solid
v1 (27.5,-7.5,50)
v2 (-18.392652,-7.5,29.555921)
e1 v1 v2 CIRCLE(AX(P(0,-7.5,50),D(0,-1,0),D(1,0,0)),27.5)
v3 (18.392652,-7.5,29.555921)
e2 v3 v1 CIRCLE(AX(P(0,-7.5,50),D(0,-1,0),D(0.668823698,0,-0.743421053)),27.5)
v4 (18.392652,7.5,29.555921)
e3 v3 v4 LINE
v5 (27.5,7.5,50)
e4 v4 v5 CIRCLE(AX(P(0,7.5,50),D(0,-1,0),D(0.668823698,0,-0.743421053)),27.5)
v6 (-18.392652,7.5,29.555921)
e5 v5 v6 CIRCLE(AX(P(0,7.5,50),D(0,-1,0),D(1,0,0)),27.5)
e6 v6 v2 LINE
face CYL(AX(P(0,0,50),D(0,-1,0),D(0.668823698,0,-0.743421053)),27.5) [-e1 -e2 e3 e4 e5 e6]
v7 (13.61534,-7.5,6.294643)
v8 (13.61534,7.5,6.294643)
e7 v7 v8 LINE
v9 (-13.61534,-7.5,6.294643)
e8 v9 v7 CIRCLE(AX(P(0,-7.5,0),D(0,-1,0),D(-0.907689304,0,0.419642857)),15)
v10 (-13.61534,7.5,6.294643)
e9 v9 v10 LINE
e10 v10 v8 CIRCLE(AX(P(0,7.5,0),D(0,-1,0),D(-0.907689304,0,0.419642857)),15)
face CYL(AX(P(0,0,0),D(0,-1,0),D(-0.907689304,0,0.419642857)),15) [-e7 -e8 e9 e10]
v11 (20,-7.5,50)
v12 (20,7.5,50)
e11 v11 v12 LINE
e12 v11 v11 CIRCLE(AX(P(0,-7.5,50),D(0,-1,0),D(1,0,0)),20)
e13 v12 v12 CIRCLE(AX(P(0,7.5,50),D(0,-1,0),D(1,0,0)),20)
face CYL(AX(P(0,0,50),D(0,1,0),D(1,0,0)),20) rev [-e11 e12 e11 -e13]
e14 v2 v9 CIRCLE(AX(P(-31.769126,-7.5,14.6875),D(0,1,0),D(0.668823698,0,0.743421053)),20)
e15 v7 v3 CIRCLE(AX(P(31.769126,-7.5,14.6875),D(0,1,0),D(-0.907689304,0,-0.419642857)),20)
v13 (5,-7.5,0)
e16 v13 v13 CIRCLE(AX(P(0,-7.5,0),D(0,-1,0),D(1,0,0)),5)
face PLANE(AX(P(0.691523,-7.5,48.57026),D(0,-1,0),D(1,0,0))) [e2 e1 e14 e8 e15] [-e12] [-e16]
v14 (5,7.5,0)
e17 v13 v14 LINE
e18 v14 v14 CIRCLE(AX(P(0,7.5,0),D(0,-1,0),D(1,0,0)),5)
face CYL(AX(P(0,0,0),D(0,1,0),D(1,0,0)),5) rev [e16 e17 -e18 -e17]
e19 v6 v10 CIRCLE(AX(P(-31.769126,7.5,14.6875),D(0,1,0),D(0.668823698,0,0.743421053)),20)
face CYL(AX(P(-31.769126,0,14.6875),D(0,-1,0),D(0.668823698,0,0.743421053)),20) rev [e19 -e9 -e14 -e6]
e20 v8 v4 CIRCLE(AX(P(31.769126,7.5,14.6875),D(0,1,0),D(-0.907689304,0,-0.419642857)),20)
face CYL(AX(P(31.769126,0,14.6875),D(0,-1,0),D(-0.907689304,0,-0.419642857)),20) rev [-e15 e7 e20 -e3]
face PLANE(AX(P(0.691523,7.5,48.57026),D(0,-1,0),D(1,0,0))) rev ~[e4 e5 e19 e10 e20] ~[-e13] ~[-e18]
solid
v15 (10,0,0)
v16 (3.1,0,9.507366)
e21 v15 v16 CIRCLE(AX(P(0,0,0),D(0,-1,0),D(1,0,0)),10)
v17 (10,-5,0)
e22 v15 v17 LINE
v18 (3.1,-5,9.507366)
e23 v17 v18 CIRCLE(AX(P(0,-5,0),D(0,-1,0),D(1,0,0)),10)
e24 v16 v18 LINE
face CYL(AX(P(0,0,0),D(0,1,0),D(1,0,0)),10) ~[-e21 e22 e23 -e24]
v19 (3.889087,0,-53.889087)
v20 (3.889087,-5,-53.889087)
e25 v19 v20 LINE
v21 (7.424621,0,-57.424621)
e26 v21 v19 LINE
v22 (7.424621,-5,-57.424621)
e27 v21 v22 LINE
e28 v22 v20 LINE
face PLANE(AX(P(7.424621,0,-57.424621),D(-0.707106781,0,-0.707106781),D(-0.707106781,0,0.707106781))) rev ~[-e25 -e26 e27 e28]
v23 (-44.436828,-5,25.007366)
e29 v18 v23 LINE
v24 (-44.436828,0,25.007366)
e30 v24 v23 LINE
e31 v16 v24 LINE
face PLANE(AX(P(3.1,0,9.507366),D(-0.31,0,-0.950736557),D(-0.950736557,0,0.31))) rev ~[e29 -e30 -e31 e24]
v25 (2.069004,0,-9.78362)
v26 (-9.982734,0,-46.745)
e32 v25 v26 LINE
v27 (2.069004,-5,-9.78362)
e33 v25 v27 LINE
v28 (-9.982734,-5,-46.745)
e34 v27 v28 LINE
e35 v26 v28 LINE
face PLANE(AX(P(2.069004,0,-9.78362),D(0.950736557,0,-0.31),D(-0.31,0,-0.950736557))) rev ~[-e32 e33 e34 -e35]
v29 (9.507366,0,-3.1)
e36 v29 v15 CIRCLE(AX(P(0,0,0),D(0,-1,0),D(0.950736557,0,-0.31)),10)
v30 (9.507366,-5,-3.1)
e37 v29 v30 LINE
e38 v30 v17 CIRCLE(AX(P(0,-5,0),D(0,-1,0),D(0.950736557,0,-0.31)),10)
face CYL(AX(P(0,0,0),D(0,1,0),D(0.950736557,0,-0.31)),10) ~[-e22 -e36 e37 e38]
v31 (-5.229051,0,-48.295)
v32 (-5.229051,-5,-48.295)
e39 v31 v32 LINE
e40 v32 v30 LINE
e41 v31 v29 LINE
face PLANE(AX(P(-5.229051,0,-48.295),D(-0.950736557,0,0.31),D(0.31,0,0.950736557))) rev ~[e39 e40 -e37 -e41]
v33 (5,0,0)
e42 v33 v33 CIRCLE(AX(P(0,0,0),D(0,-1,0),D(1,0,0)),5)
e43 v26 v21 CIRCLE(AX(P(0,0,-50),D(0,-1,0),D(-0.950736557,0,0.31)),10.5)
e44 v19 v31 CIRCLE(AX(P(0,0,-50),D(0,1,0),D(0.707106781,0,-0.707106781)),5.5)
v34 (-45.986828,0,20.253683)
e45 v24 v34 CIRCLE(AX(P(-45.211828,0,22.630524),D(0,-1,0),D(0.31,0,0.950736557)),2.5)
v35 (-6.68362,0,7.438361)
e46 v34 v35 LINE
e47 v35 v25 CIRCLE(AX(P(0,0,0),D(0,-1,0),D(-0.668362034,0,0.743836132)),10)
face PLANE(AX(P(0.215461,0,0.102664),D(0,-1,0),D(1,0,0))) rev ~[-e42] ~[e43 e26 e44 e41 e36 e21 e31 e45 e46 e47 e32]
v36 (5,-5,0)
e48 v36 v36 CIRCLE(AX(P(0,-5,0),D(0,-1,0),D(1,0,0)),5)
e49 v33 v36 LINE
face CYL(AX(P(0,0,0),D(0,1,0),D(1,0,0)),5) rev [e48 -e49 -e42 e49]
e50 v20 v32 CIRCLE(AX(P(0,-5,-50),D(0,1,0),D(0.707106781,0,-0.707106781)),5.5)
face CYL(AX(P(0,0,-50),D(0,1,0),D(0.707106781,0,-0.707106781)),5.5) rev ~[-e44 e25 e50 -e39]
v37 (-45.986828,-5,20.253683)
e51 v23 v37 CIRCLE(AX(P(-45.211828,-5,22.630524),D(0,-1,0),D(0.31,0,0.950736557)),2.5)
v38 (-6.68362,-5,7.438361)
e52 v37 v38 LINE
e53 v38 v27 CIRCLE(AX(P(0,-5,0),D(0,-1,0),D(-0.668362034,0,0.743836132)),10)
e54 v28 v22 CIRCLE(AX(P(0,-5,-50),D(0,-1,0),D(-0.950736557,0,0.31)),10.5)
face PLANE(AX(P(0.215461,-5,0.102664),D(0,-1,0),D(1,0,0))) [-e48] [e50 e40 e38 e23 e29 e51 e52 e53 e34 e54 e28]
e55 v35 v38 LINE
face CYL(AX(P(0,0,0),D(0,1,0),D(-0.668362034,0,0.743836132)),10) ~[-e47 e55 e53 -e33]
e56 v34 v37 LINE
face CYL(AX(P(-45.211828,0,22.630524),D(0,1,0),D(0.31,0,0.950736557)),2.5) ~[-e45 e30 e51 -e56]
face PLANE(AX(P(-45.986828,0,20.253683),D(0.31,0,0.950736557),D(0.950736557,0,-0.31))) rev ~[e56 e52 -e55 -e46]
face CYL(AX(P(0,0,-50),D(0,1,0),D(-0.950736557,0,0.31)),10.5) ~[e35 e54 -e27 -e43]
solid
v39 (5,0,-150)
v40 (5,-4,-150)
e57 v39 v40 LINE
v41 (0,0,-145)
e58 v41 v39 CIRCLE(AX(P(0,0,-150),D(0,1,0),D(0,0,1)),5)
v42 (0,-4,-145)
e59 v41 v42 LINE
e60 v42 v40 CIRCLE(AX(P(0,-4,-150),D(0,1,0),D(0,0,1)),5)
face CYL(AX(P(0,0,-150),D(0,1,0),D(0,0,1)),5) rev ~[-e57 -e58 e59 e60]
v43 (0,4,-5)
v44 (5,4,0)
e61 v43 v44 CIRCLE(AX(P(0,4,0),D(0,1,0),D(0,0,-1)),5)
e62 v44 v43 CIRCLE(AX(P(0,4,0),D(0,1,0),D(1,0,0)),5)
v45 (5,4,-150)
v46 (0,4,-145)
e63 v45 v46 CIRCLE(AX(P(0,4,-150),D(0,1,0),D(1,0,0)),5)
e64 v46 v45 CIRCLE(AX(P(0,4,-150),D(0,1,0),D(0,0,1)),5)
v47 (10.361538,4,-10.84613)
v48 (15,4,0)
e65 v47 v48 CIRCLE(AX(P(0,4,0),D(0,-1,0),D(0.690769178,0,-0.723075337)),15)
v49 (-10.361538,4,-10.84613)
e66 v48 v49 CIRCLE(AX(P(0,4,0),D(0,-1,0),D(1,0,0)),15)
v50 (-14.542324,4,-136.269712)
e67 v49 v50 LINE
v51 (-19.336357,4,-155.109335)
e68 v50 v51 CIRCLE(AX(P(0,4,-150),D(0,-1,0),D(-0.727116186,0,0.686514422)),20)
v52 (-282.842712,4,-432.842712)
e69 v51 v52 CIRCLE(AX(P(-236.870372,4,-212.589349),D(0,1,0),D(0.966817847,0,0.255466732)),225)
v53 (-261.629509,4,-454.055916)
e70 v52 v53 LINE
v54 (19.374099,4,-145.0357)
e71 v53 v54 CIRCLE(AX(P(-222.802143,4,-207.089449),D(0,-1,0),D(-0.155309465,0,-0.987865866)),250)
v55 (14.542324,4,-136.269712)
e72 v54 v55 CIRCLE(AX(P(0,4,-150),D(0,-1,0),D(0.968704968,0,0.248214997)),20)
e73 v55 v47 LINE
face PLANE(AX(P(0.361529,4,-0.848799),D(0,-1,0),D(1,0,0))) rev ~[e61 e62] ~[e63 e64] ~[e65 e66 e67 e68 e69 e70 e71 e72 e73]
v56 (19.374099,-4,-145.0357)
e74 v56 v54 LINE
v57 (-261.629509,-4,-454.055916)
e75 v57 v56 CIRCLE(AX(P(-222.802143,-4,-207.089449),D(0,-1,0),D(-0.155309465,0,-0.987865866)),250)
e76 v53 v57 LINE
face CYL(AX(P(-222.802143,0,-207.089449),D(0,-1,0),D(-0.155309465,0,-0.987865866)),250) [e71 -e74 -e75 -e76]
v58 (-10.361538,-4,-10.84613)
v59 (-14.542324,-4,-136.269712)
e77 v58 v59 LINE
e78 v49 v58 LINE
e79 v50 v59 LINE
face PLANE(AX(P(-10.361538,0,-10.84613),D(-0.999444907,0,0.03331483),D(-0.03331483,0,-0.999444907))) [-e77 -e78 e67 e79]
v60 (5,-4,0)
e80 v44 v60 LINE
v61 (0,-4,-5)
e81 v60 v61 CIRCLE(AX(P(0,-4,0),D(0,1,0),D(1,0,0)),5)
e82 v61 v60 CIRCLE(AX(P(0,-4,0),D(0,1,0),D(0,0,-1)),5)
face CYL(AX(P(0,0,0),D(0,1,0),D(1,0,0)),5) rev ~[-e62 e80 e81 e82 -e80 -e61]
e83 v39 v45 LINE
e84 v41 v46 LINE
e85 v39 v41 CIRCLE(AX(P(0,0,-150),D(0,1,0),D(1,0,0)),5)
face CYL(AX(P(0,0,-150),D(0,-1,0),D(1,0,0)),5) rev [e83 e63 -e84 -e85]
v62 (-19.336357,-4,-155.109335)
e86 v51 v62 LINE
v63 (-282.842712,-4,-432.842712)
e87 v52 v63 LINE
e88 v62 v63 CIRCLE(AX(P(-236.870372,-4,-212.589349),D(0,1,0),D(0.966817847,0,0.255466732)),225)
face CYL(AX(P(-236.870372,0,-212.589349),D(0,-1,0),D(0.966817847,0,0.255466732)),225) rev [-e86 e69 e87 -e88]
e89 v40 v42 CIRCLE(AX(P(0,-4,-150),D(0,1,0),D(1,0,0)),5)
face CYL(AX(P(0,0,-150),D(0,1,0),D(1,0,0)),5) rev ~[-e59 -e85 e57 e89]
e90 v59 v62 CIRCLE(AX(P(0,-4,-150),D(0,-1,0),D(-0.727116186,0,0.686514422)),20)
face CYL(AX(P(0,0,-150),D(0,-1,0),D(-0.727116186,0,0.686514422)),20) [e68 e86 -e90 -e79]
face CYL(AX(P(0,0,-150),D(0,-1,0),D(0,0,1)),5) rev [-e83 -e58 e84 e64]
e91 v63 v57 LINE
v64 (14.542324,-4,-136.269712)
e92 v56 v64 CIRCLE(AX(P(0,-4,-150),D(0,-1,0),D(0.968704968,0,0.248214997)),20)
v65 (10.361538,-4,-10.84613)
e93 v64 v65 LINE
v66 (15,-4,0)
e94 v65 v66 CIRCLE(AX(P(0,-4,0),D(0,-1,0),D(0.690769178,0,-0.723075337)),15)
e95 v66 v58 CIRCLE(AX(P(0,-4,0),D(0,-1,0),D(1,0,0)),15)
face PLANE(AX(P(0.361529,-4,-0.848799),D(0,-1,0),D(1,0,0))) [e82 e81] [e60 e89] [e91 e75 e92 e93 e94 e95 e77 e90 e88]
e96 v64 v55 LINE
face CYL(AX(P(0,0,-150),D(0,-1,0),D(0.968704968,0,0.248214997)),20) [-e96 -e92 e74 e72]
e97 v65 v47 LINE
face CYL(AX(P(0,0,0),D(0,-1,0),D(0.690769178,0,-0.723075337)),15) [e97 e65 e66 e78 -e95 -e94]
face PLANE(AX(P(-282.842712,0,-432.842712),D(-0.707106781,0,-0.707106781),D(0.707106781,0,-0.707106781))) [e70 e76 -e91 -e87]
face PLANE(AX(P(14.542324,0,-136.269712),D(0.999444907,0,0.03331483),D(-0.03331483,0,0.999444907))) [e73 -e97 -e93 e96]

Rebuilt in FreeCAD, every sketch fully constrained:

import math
import FreeCAD as App
import Part
import Sketcher
Q = App.Units.Quantity

doc = App.newDocument("Part")
params = doc.addObject("Spreadsheet::Sheet", "Params")
for row, (alias, value) in enumerate([
    ("sketch1_radius", "15 mm"),
    ("sketch1_radius2", "20 mm"),
    ("sketch1_radius3", "225 mm"),
    ("sketch1_radius4", "250 mm"),
    ("sketch1_radius5", "5 mm"),
    ("pad1_length", "8 mm"),
    ("sketch2_diameter", "10 mm"),
    ("sketch2_diameter2", "40 mm"),
    ("sketch2_radius", "15 mm"),
    ("sketch2_radius2", "27.5 mm"),
    ("pad2_length", "15 mm"),
    ("sketch3_diameter", "10 mm"),
    ("sketch3_radius", "10 mm"),
    ("sketch3_radius2", "2.5 mm"),
    ("sketch3_radius3", "10.5 mm"),
    ("sketch3_radius4", "5.5 mm"),
    ("pad3_length", "5 mm"),
], start=1):
    params.set(f"A{row}", alias)
    params.set(f"B{row}", "=" + value)
    params.setAlias(f"B{row}", alias)

body = doc.addObject("PartDesign::Body", "Body")

# Sketch on XZ plane
sketch1 = body.newObject("Sketcher::SketchObject", "Sketch")
sketch1.AttachmentSupport = (doc.getObject("XZ_Plane"), [""])
sketch1.MapMode = "FlatFace"
sketch1.addGeometry([
    Part.ArcOfCircle(Part.Circle(App.Vector(0, 0, 0), App.Vector(0, 0, 1), 15), math.radians(-46), math.radians(0)),  # 0
    Part.ArcOfCircle(Part.Circle(App.Vector(0, 0, 0), App.Vector(0, 0, 1), 15), math.radians(0), math.radians(226)),  # 1
    Part.LineSegment(App.Vector(-10, -11, 0), App.Vector(-15, -136, 0)),  # 2
    Part.ArcOfCircle(Part.Circle(App.Vector(0, -150, 0), App.Vector(0, 0, 1), 20), math.radians(137), math.radians(195)),  # 3
    Part.ArcOfCircle(Part.Circle(App.Vector(-237, -213, 0), App.Vector(0, 0, 1), 225), math.radians(-102), math.radians(15)),  # 4
    Part.LineSegment(App.Vector(-283, -433, 0), App.Vector(-262, -454, 0)),  # 5
    Part.ArcOfCircle(Part.Circle(App.Vector(-223, -207, 0), App.Vector(0, 0, 1), 250), math.radians(-99), math.radians(14)),  # 6
    Part.ArcOfCircle(Part.Circle(App.Vector(0, -150, 0), App.Vector(0, 0, 1), 20), math.radians(14), math.radians(43)),  # 7
    Part.LineSegment(App.Vector(15, -136, 0), App.Vector(10, -11, 0)),  # 8
    Part.ArcOfCircle(Part.Circle(App.Vector(0, -150, 0), App.Vector(0, 0, 1), 5), math.radians(0), math.radians(90)),  # 9
    Part.ArcOfCircle(Part.Circle(App.Vector(0, -150, 0), App.Vector(0, 0, 1), 5), math.radians(90), math.radians(360)),  # 10
    Part.ArcOfCircle(Part.Circle(App.Vector(0, 0, 0), App.Vector(0, 0, 1), 5), math.radians(0), math.radians(270)),  # 11
    Part.ArcOfCircle(Part.Circle(App.Vector(0, 0, 0), App.Vector(0, 0, 1), 5), math.radians(-90), math.radians(0)),  # 12
], False)
sketch1.addConstraint([
    Sketcher.Constraint("Tangent", 0, 2, 1, 1),
    Sketcher.Constraint("Coincident", 1, 2, 2, 1),
    Sketcher.Constraint("Coincident", 2, 2, 3, 1),
    Sketcher.Constraint("Tangent", 3, 2, 4, 2),
    Sketcher.Constraint("Coincident", 4, 1, 5, 1),
    Sketcher.Constraint("Coincident", 5, 2, 6, 1),
    Sketcher.Constraint("Tangent", 6, 2, 7, 1),
    Sketcher.Constraint("Coincident", 7, 2, 8, 1),
    Sketcher.Constraint("Coincident", 8, 2, 0, 1),
    Sketcher.Constraint("Tangent", 9, 1, 10, 2),
    Sketcher.Constraint("Coincident", 10, 1, 9, 2),
    Sketcher.Constraint("Tangent", 11, 1, 12, 2),
    Sketcher.Constraint("Coincident", 12, 1, 11, 2),
    Sketcher.Constraint("Coincident", 0, 3, -1, 1),
    Sketcher.Constraint("Coincident", 11, 3, -1, 1),
    Sketcher.Constraint("Coincident", 7, 3, 3, 3),
    Sketcher.Constraint("Coincident", 9, 3, 3, 3),
    Sketcher.Constraint("Equal", 0, 1),
    Sketcher.Constraint("Equal", 3, 7),
    Sketcher.Constraint("Equal", 10, 11),
    Sketcher.Constraint("Symmetric", 2, 2, 7, 2, -2),
    Sketcher.Constraint("PointOnObject", 0, 2, -1),
    Sketcher.Constraint("PointOnObject", 10, 1, -2),
    Sketcher.Constraint("PointOnObject", 11, 1, -1),
    Sketcher.Constraint("PointOnObject", 12, 1, -2),
    Sketcher.Constraint("Horizontal", 1, 2, 8, 2),
    Sketcher.Constraint("Horizontal", 10, 3, 9, 1),
    Sketcher.Constraint("Radius", 0, Q("15 mm")),
    Sketcher.Constraint("Radius", 3, Q("20 mm")),
    Sketcher.Constraint("Radius", 4, Q("225 mm")),
    Sketcher.Constraint("Radius", 6, Q("250 mm")),
    Sketcher.Constraint("Radius", 9, Q("5 mm")),
    Sketcher.Constraint("Angle", 5, Q("-45 deg")),
    Sketcher.Constraint("Distance", 5, Q("30 mm")),
    Sketcher.Constraint("DistanceY", 3, 3, -1, 1, Q("150 mm")),
    Sketcher.Constraint("DistanceY", 4, 1, 2, 2, Q("296.573001 mm")),
    Sketcher.Constraint("DistanceY", 4, 3, 6, 3, Q("5.4999 mm")),
    Sketcher.Constraint("Distance", 2, Q("125.493242 mm")),
    Sketcher.Constraint("DistanceY", 4, 3, -1, 1, Q("212.589349 mm")),
])
sketch1.setExpression("Constraints[27]", "Params.sketch1_radius")
sketch1.setExpression("Constraints[28]", "Params.sketch1_radius2")
sketch1.setExpression("Constraints[29]", "Params.sketch1_radius3")
sketch1.setExpression("Constraints[30]", "Params.sketch1_radius4")
sketch1.setExpression("Constraints[31]", "Params.sketch1_radius5")
pad1 = body.newObject("PartDesign::Pad", "Pad")
pad1.Profile = sketch1
pad1.setExpression("Length", "Params.pad1_length")
pad1.Midplane = True
body2 = doc.addObject("PartDesign::Body", "Body001")

# Sketch on XZ plane
sketch2 = body2.newObject("Sketcher::SketchObject", "Sketch001")
sketch2.AttachmentSupport = (doc.getObject("XZ_Plane001"), [""])
sketch2.MapMode = "FlatFace"
sketch2.addGeometry([
    Part.ArcOfCircle(Part.Circle(App.Vector(0, 50, 0), App.Vector(0, 0, 1), 28), math.radians(-48), math.radians(0)),  # 0
    Part.ArcOfCircle(Part.Circle(App.Vector(0, 50, 0), App.Vector(0, 0, 1), 28), math.radians(0), math.radians(228)),  # 1
    Part.ArcOfCircle(Part.Circle(App.Vector(-32, 15, 0), App.Vector(0, 0, 1), 20), math.radians(-25), math.radians(48)),  # 2
    Part.ArcOfCircle(Part.Circle(App.Vector(0, 0, 0), App.Vector(0, 0, 1), 15), math.radians(155), math.radians(385)),  # 3
    Part.ArcOfCircle(Part.Circle(App.Vector(32, 15, 0), App.Vector(0, 0, 1), 20), math.radians(132), math.radians(205)),  # 4
    Part.Circle(App.Vector(0, 0, 0), App.Vector(0, 0, 1), 5),  # 5
    Part.Circle(App.Vector(0, 50, 0), App.Vector(0, 0, 1), 20),  # 6
], False)
sketch2.addConstraint([
    Sketcher.Constraint("Tangent", 0, 2, 1, 1),
    Sketcher.Constraint("Tangent", 1, 2, 2, 2),
    Sketcher.Constraint("Tangent", 2, 1, 3, 1),
    Sketcher.Constraint("Tangent", 3, 2, 4, 2),
    Sketcher.Constraint("Tangent", 4, 1, 0, 1),
    Sketcher.Constraint("Coincident", 3, 3, -1, 1),
    Sketcher.Constraint("Coincident", 5, 3, -1, 1),
    Sketcher.Constraint("Coincident", 6, 3, 0, 3),
    Sketcher.Constraint("Equal", 0, 1),
    Sketcher.Constraint("Equal", 2, 4),
    Sketcher.Constraint("Equal", 4, 6),
    Sketcher.Constraint("PointOnObject", 0, 3, -2),
    Sketcher.Constraint("Horizontal", 6, 3, 0, 2),
    Sketcher.Constraint("Diameter", 5, Q("10 mm")),
    Sketcher.Constraint("Diameter", 6, Q("40 mm")),
    Sketcher.Constraint("Radius", 3, Q("15 mm")),
    Sketcher.Constraint("Radius", 0, Q("27.5 mm")),
    Sketcher.Constraint("DistanceY", -1, 1, 0, 3, Q("50 mm")),
])
sketch2.setExpression("Constraints[13]", "Params.sketch2_diameter")
sketch2.setExpression("Constraints[14]", "Params.sketch2_diameter2")
sketch2.setExpression("Constraints[15]", "Params.sketch2_radius")
sketch2.setExpression("Constraints[16]", "Params.sketch2_radius2")
pad2 = body2.newObject("PartDesign::Pad", "Pad001")
pad2.Profile = sketch2
pad2.setExpression("Length", "Params.pad2_length")
pad2.Midplane = True
body3 = doc.addObject("PartDesign::Body", "Body002")

# Sketch on XZ plane
sketch3 = body3.newObject("Sketcher::SketchObject", "Sketch002")
sketch3.AttachmentSupport = (doc.getObject("XZ_Plane002"), [""])
sketch3.MapMode = "FlatFace"
sketch3.addGeometry([
    Part.ArcOfCircle(Part.Circle(App.Vector(0, 0, 0), App.Vector(0, 0, 1), 10), math.radians(-18.06), math.radians(0)),  # 0
    Part.ArcOfCircle(Part.Circle(App.Vector(0, 0, 0), App.Vector(0, 0, 1), 10), math.radians(0), math.radians(72)),  # 1
    Part.LineSegment(App.Vector(3.1, 9.5, 0), App.Vector(-44.4, 25, 0)),  # 2
    Part.ArcOfCircle(Part.Circle(App.Vector(-45.2, 22.6, 0), App.Vector(0, 0, 1), 2.5), math.radians(72), math.radians(252)),  # 3
    Part.LineSegment(App.Vector(-46, 20.3, 0), App.Vector(-6.7, 7.4, 0)),  # 4
    Part.ArcOfCircle(Part.Circle(App.Vector(0, 0, 0), App.Vector(0, 0, 1), 10), math.radians(132), math.radians(282)),  # 5
    Part.LineSegment(App.Vector(2.1, -9.8, 0), App.Vector(-10, -46.7, 0)),  # 6
    Part.ArcOfCircle(Part.Circle(App.Vector(0, -50, 0), App.Vector(0, 0, 1), 10.5), math.radians(162), math.radians(315)),  # 7
    Part.LineSegment(App.Vector(7.4, -57.4, 0), App.Vector(3.9, -53.9, 0)),  # 8
    Part.ArcOfCircle(Part.Circle(App.Vector(0, -50, 0), App.Vector(0, 0, 1), 5.5), math.radians(162), math.radians(315)),  # 9
    Part.LineSegment(App.Vector(-5.2, -48.3, 0), App.Vector(9.5, -3.1, 0)),  # 10
    Part.Circle(App.Vector(0, 0, 0), App.Vector(0, 0, 1), 5),  # 11
], False)
sketch3.addConstraint([
    Sketcher.Constraint("Tangent", 0, 2, 1, 1),
    Sketcher.Constraint("Tangent", 1, 2, 2, 1),
    Sketcher.Constraint("Tangent", 2, 2, 3, 1),
    Sketcher.Constraint("Tangent", 3, 2, 4, 1),
    Sketcher.Constraint("Coincident", 4, 2, 5, 1),
    Sketcher.Constraint("Coincident", 5, 2, 6, 1),
    Sketcher.Constraint("Tangent", 6, 2, 7, 1),
    Sketcher.Constraint("Coincident", 7, 2, 8, 1),
    Sketcher.Constraint("Coincident", 8, 2, 9, 2),
    Sketcher.Constraint("Tangent", 9, 1, 10, 1),
    Sketcher.Constraint("Tangent", 10, 2, 0, 1),
    Sketcher.Constraint("Coincident", 0, 3, -1, 1),
    Sketcher.Constraint("Coincident", 5, 3, -1, 1),
    Sketcher.Constraint("Coincident", 11, 3, -1, 1),
    Sketcher.Constraint("Coincident", 9, 3, 7, 3),
    Sketcher.Constraint("Equal", 0, 1),
    Sketcher.Constraint("Equal", 1, 5),
    Sketcher.Constraint("PointOnObject", 7, 3, -2),
    Sketcher.Constraint("PointOnObject", 0, 2, -1),
    Sketcher.Constraint("Parallel", 2, 4),
    Sketcher.Constraint("Perpendicular", 4, 6),
    Sketcher.Constraint("Parallel", 6, 10),
    Sketcher.Constraint("Diameter", 11, Q("10 mm")),
    Sketcher.Constraint("Radius", 0, Q("10 mm")),
    Sketcher.Constraint("Radius", 3, Q("2.5 mm")),
    Sketcher.Constraint("Radius", 7, Q("10.5 mm")),
    Sketcher.Constraint("Radius", 9, Q("5.5 mm")),
    Sketcher.Constraint("Angle", 8, Q("135 deg")),
    Sketcher.Constraint("Distance", 2, Q("50 mm")),
    Sketcher.Constraint("DistanceY", 7, 3, -1, 1, Q("50 mm")),
    Sketcher.Constraint("DistanceY", 7, 2, 5, 2, Q("47.641001 mm")),
])
sketch3.setExpression("Constraints[22]", "Params.sketch3_diameter")
sketch3.setExpression("Constraints[23]", "Params.sketch3_radius")
sketch3.setExpression("Constraints[24]", "Params.sketch3_radius2")
sketch3.setExpression("Constraints[25]", "Params.sketch3_radius3")
sketch3.setExpression("Constraints[26]", "Params.sketch3_radius4")
pad3 = body3.newObject("PartDesign::Pad", "Pad002")
pad3.Profile = sketch3
pad3.setExpression("Length", "Params.pad3_length")

doc.recompute()
